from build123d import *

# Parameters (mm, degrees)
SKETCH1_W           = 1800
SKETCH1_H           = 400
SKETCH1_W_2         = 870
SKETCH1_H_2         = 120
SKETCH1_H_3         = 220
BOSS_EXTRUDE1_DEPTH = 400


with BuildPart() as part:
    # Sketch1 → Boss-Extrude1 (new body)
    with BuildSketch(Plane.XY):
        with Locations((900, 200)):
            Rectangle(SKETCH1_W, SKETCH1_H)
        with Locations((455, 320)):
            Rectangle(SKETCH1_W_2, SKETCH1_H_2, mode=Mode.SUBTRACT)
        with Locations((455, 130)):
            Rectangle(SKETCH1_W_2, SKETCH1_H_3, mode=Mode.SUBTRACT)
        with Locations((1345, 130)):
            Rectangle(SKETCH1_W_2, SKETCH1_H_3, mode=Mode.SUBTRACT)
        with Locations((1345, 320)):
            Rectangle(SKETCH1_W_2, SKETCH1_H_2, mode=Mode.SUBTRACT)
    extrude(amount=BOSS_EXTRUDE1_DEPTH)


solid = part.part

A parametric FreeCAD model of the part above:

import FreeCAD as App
import Part
import Sketcher
from FreeCAD import Vector
Q = App.Units.Quantity


def add_polygon(sketch, points):
    """Adds a closed chain of lines whose ends are joined by coincident constraints."""
    first, n = sketch.GeometryCount, len(points)
    for a, b in zip(points, points[1:] + points[:1]):
        sketch.addGeometry(Part.LineSegment(App.Vector(*a, 0), App.Vector(*b, 0)), False)
    for i in range(n):
        sketch.addConstraint(Sketcher.Constraint("Coincident", first + i, 2, first + (i + 1) % n, 1))

doc = App.newDocument("Part")
body = doc.addObject("PartDesign::Body", "Body")

sketch1 = body.newObject("Sketcher::SketchObject", "Sketch")
sketch1.AttachmentSupport = (doc.getObject("XY_Plane"), [""])
sketch1.MapMode = "FlatFace"
add_polygon(sketch1, [(0, 400), (0, 0), (1800, 0), (1800, 400)])
add_polygon(sketch1, [(890, 20), (20, 20), (20, 240), (890, 240)])
add_polygon(sketch1, [(1780, 20), (910, 20), (910, 240), (1780, 240)])
add_polygon(sketch1, [(890, 260), (20, 260), (20, 380), (890, 380)])
add_polygon(sketch1, [(1780, 260), (910, 260), (910, 380), (1780, 380)])
sketch1.addConstraint([
    Sketcher.Constraint("Vertical", 0),
    Sketcher.Constraint("Horizontal", 1),
    Sketcher.Constraint("Vertical", 2),
    Sketcher.Constraint("Horizontal", 3),
    Sketcher.Constraint("Horizontal", 4),
    Sketcher.Constraint("Vertical", 5),
    Sketcher.Constraint("Horizontal", 6),
    Sketcher.Constraint("Vertical", 7),
    Sketcher.Constraint("Horizontal", 8),
    Sketcher.Constraint("Vertical", 9),
    Sketcher.Constraint("Horizontal", 10),
    Sketcher.Constraint("Vertical", 11),
    Sketcher.Constraint("Horizontal", 12),
    Sketcher.Constraint("Vertical", 13),
    Sketcher.Constraint("Horizontal", 14),
    Sketcher.Constraint("Vertical", 15),
    Sketcher.Constraint("Horizontal", 16),
    Sketcher.Constraint("Vertical", 17),
    Sketcher.Constraint("Horizontal", 18),
    Sketcher.Constraint("Vertical", 19),
    Sketcher.Constraint("Coincident", 0, 2, -1, 1),
    Sketcher.Constraint("Horizontal", 7, 2, 8, 2),
    Sketcher.Constraint("Horizontal", 6, 2, 9, 2),
    Sketcher.Constraint("Horizontal", 15, 2, 16, 2),
    Sketcher.Constraint("Horizontal", 14, 2, 17, 2),
    Sketcher.Constraint("Vertical", 5, 2, 12, 2),
    Sketcher.Constraint("Vertical", 7, 2, 14, 2),
    Sketcher.Constraint("Vertical", 9, 2, 16, 2),
    Sketcher.Constraint("Vertical", 11, 2, 18, 2),
    Sketcher.Constraint("Equal", 6, 8),
    Sketcher.Constraint("DistanceX", 1, 1, 1, 2, Q("1800 mm")),
    Sketcher.Constraint("DistanceX", 4, 2, 4, 1, Q("870 mm")),
    Sketcher.Constraint("DistanceY", 0, 2, 0, 1, Q("400 mm")),
    Sketcher.Constraint("DistanceY", 5, 1, 5, 2, Q("220 mm")),
    Sketcher.Constraint("DistanceY", 13, 1, 13, 2, Q("120 mm")),
    Sketcher.Constraint("DistanceX", -1, 1, 4, 2, Q("20 mm")),
    Sketcher.Constraint("DistanceY", -1, 1, 4, 2, Q("20 mm")),
    Sketcher.Constraint("DistanceX", -1, 1, 8, 2, Q("910 mm")),
    Sketcher.Constraint("DistanceY", -1, 1, 12, 2, Q("260 mm")),
])
pad1 = body.newObject("PartDesign::Pad", "Pad")
pad1.Profile = sketch1
pad1.Length = 400

doc.recompute()
